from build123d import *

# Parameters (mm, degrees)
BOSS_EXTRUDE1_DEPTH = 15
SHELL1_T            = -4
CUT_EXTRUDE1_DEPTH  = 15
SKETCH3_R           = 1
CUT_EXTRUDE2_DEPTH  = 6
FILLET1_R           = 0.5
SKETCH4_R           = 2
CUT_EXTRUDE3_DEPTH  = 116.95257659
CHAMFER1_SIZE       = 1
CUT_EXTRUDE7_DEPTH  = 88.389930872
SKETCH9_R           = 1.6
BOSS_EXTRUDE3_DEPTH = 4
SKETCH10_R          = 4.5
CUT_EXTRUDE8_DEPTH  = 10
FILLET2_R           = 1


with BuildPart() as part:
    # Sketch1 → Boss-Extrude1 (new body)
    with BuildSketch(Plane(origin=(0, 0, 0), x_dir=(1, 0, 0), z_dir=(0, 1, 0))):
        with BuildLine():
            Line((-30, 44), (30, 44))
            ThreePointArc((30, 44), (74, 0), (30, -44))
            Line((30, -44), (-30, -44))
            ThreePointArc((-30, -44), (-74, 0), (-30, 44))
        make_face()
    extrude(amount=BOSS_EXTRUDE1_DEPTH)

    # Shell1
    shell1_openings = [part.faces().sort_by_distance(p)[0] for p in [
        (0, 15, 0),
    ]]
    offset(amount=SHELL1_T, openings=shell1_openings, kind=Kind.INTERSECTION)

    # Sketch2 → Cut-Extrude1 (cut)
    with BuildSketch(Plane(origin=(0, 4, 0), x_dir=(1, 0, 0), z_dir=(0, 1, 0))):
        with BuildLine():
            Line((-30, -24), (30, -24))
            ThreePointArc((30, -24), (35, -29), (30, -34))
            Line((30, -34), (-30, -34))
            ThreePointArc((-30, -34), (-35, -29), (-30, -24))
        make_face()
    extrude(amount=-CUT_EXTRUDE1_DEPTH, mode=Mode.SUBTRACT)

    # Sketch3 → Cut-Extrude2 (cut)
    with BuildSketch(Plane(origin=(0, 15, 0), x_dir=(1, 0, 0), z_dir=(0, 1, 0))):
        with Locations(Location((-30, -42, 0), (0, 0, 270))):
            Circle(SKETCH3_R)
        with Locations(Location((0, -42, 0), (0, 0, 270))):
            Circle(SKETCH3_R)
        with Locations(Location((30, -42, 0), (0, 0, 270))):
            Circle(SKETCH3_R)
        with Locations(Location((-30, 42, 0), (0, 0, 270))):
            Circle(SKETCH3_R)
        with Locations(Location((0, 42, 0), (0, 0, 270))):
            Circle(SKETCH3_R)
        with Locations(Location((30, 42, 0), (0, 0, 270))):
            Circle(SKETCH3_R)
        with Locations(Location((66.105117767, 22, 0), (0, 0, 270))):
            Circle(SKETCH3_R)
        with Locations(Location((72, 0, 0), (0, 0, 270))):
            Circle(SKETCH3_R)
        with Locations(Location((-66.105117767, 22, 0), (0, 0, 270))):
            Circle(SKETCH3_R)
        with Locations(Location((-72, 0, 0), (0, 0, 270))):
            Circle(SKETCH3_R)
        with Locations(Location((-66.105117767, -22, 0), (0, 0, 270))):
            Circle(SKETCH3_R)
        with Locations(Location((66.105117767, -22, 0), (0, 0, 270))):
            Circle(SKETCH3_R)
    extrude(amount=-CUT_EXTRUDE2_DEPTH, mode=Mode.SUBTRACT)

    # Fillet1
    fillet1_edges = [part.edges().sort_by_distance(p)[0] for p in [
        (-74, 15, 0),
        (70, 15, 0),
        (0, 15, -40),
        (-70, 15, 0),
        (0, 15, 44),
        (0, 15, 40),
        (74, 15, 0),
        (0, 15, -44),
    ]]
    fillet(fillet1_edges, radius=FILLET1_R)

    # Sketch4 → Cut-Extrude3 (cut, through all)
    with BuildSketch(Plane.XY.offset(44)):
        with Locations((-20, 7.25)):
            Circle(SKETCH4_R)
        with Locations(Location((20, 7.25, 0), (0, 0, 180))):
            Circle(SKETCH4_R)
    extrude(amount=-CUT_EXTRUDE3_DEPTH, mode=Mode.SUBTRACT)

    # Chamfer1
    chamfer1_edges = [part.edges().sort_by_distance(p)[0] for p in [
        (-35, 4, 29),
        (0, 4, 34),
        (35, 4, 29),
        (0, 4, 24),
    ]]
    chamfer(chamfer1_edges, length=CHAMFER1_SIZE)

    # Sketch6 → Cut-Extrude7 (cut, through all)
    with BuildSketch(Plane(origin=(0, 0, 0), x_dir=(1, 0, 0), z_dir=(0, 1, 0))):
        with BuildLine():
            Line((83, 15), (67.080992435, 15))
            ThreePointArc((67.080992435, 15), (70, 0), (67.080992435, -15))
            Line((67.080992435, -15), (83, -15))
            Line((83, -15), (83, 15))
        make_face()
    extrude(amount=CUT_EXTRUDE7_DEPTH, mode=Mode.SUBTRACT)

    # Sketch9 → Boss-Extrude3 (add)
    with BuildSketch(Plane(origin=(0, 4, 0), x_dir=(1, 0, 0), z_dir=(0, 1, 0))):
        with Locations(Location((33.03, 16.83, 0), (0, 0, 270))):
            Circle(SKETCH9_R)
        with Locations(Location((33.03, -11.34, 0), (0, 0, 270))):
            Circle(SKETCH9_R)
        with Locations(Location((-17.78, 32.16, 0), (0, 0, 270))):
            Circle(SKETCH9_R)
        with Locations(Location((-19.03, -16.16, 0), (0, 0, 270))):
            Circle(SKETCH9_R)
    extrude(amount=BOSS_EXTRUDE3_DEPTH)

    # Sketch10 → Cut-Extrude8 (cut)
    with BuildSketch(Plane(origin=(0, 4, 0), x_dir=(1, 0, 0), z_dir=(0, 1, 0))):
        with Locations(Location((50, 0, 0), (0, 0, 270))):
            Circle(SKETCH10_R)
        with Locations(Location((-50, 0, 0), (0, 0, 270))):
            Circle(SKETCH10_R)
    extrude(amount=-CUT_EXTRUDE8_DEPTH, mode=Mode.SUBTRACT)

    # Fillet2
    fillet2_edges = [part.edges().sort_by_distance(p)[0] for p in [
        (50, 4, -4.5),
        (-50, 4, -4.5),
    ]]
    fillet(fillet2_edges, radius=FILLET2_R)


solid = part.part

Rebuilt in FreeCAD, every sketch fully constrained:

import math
import FreeCAD as App
import Part
import Sketcher

V = App.Vector
Q = App.Units.Quantity


def edges_at(feature, points):
    """Names of the edges that pass closest to the given points."""
    edges = feature.Shape.Edges
    near = lambda p: min(range(len(edges)), key=lambda i: edges[i].distToShape(Part.Vertex(*p))[0])
    return sorted({f"Edge{near(p) + 1}" for p in points})


def faces_at(feature, points):
    """Names of the faces that lie closest to the given points."""
    faces = feature.Shape.Faces
    near = lambda p: min(range(len(faces)), key=lambda i: faces[i].distToShape(Part.Vertex(*p))[0])
    return sorted({f"Face{near(p) + 1}" for p in points})

doc = App.newDocument("Part")
body = doc.addObject("PartDesign::Body", "Body")

# Sketch on XZ plane
sketch1 = body.newObject("Sketcher::SketchObject", "Sketch")
sketch1.AttachmentSupport = (doc.getObject("XZ_Plane"), [""])
sketch1.MapMode = "FlatFace"
sketch1.addGeometry(Part.LineSegment(V(30, -44, 0), V(-30, -44, 0)), False)
sketch1.addGeometry(Part.ArcOfCircle(Part.Circle(V(-30, 0, 0), V(0, 0, 1), 44), math.radians(90), math.radians(270)), False)
sketch1.addGeometry(Part.LineSegment(V(-30, 44, 0), V(30, 44, 0)), False)
sketch1.addGeometry(Part.ArcOfCircle(Part.Circle(V(30, 0, 0), V(0, 0, 1), 44), math.radians(-90), math.radians(90)), False)
sketch1.addConstraint(Sketcher.Constraint("Tangent", 0, 2, 1, 2))
sketch1.addConstraint(Sketcher.Constraint("Tangent", 1, 1, 2, 1))
sketch1.addConstraint(Sketcher.Constraint("Tangent", 2, 2, 3, 2))
sketch1.addConstraint(Sketcher.Constraint("Tangent", 3, 1, 0, 1))
sketch1.addConstraint(Sketcher.Constraint("Horizontal", 0))
sketch1.addConstraint(Sketcher.Constraint("Horizontal", 2))
sketch1.addConstraint(Sketcher.Constraint("Symmetric", 1, 3, 3, 3, -1, 1))
sketch1.addConstraint(Sketcher.Constraint("Radius", 1, Q("44 mm")))
sketch1.addConstraint(Sketcher.Constraint("DistanceX", 0, 2, 0, 1, Q("60 mm")))
pad1 = body.newObject("PartDesign::Pad", "Pad")
pad1.Profile = sketch1
pad1.Length = 15
pad1.Reversed = True
doc.recompute()

thickness = body.newObject("PartDesign::Thickness", "Thickness")
thickness.Base = (pad1, faces_at(pad1, [(0, 15, 0)]))
thickness.Value = 4
thickness.Reversed = True
thickness.Join = "Intersection"

# Sketch on XZ plane
sketch2 = body.newObject("Sketcher::SketchObject", "Sketch001")
sketch2.AttachmentSupport = (doc.getObject("XZ_Plane"), [""])
sketch2.MapMode = "FlatFace"
sketch2.AttachmentOffset = App.Placement(V(0, 0, -4), App.Rotation())
sketch2.addGeometry(Part.LineSegment(V(30, 24, 0), V(-30, 24, 0)), False)
sketch2.addGeometry(Part.ArcOfCircle(Part.Circle(V(-30, 29, 0), V(0, 0, 1), 5), math.radians(90), math.radians(270)), False)
sketch2.addGeometry(Part.LineSegment(V(-30, 34, 0), V(30, 34, 0)), False)
sketch2.addGeometry(Part.ArcOfCircle(Part.Circle(V(30, 29, 0), V(0, 0, 1), 5), math.radians(-90), math.radians(90)), False)
sketch2.addConstraint(Sketcher.Constraint("Tangent", 0, 2, 1, 2))
sketch2.addConstraint(Sketcher.Constraint("Tangent", 1, 1, 2, 1))
sketch2.addConstraint(Sketcher.Constraint("Tangent", 2, 2, 3, 2))
sketch2.addConstraint(Sketcher.Constraint("Tangent", 3, 1, 0, 1))
sketch2.addConstraint(Sketcher.Constraint("Horizontal", 0))
sketch2.addConstraint(Sketcher.Constraint("Horizontal", 2))
sketch2.addConstraint(Sketcher.Constraint("Radius", 1, Q("5 mm")))
sketch2.addConstraint(Sketcher.Constraint("DistanceX", 0, 2, 0, 1, Q("60 mm")))
sketch2.addConstraint(Sketcher.Constraint("DistanceX", 1, 3, -1, 1, Q("30 mm")))
sketch2.addConstraint(Sketcher.Constraint("DistanceY", -1, 1, 1, 3, Q("29 mm")))
pocket1 = body.newObject("PartDesign::Pocket", "Pocket")
pocket1.Profile = sketch2
pocket1.Length = 15
pocket1.Reversed = True

# Sketch on XZ plane
sketch3 = body.newObject("Sketcher::SketchObject", "Sketch002")
sketch3.AttachmentSupport = (doc.getObject("XZ_Plane"), [""])
sketch3.MapMode = "FlatFace"
sketch3.AttachmentOffset = App.Placement(V(0, 0, -15), App.Rotation())
sketch3.addGeometry(Part.Circle(V(-30, 42, 0), V(0, 0, 1), 1), False)
sketch3.addGeometry(Part.Circle(V(0, 42, 0), V(0, 0, 1), 1), False)
sketch3.addGeometry(Part.Circle(V(30, 42, 0), V(0, 0, 1), 1), False)
sketch3.addGeometry(Part.Circle(V(-30, -42, 0), V(0, 0, 1), 1), False)
sketch3.addGeometry(Part.Circle(V(0, -42, 0), V(0, 0, 1), 1), False)
sketch3.addGeometry(Part.Circle(V(30, -42, 0), V(0, 0, 1), 1), False)
sketch3.addGeometry(Part.Circle(V(66.1, -22, 0), V(0, 0, 1), 1), False)
sketch3.addGeometry(Part.Circle(V(72, 0, 0), V(0, 0, 1), 1), False)
sketch3.addGeometry(Part.Circle(V(-66.1, -22, 0), V(0, 0, 1), 1), False)
sketch3.addGeometry(Part.Circle(V(-72, 0, 0), V(0, 0, 1), 1), False)
sketch3.addGeometry(Part.Circle(V(-66.1, 22, 0), V(0, 0, 1), 1), False)
sketch3.addGeometry(Part.Circle(V(66.1, 22, 0), V(0, 0, 1), 1), False)
sketch3.addConstraint(Sketcher.Constraint("Equal", 0, 1))
sketch3.addConstraint(Sketcher.Constraint("Equal", 1, 2))
sketch3.addConstraint(Sketcher.Constraint("Equal", 2, 3))
sketch3.addConstraint(Sketcher.Constraint("Equal", 3, 4))
sketch3.addConstraint(Sketcher.Constraint("Equal", 4, 5))
sketch3.addConstraint(Sketcher.Constraint("Equal", 5, 6))
sketch3.addConstraint(Sketcher.Constraint("Equal", 6, 7))
sketch3.addConstraint(Sketcher.Constraint("Equal", 7, 8))
sketch3.addConstraint(Sketcher.Constraint("Equal", 8, 9))
sketch3.addConstraint(Sketcher.Constraint("Equal", 9, 10))
sketch3.addConstraint(Sketcher.Constraint("Equal", 10, 11))
sketch3.addConstraint(Sketcher.Constraint("Symmetric", 2, 3, 3, 3, -1, 1))
sketch3.addConstraint(Sketcher.Constraint("Symmetric", 1, 3, 4, 3, -1, 1))
sketch3.addConstraint(Sketcher.Constraint("Symmetric", 0, 3, 5, 3, -1, 1))
sketch3.addConstraint(Sketcher.Constraint("Symmetric", 7, 3, 9, 3, -1, 1))
sketch3.addConstraint(Sketcher.Constraint("Symmetric", 6, 3, 10, 3, -1, 1))
sketch3.addConstraint(Sketcher.Constraint("Symmetric", 8, 3, 11, 3, -1, 1))
sketch3.addConstraint(Sketcher.Constraint("Symmetric", 0, 3, 2, 3, -2))
sketch3.addConstraint(Sketcher.Constraint("Symmetric", 6, 3, 8, 3, -2))
sketch3.addConstraint(Sketcher.Constraint("PointOnObject", 1, 3, -2))
sketch3.addConstraint(Sketcher.Constraint("PointOnObject", 7, 3, -1))
sketch3.addConstraint(Sketcher.Constraint("Horizontal", 0, 3, 1, 3))
sketch3.addConstraint(Sketcher.Constraint("Diameter", 0, Q("2 mm")))
sketch3.addConstraint(Sketcher.Constraint("DistanceX", 0, 3, -1, 1, Q("30 mm")))
sketch3.addConstraint(Sketcher.Constraint("DistanceY", -1, 1, 0, 3, Q("42 mm")))
sketch3.addConstraint(Sketcher.Constraint("DistanceY", 6, 3, -1, 1, Q("22 mm")))
sketch3.addConstraint(Sketcher.Constraint("DistanceX", -1, 1, 7, 3, Q("72 mm")))
sketch3.addConstraint(Sketcher.Constraint("DistanceX", -1, 1, 6, 3, Q("66.105118 mm")))
pocket2 = body.newObject("PartDesign::Pocket", "Pocket001")
pocket2.Profile = sketch3
pocket2.Length = 6
pocket2.Reversed = True
doc.recompute()

fillet = body.newObject("PartDesign::Fillet", "Fillet")
fillet.Base = (pocket2, edges_at(pocket2, [
    (-74, 15, 0),
    (70, 15, 0),
    (0, 15, -40),
    (-70, 15, 0),
    (0, 15, 44),
    (0, 15, 40),
    (74, 15, 0),
    (0, 15, -44),
]))
fillet.Radius = 0.5

# Sketch on XY plane
sketch4 = body.newObject("Sketcher::SketchObject", "Sketch003")
sketch4.AttachmentSupport = (doc.getObject("XY_Plane"), [""])
sketch4.MapMode = "FlatFace"
sketch4.AttachmentOffset = App.Placement(V(0, 0, 44), App.Rotation())
sketch4.addGeometry(Part.Circle(V(-20, 7.2, 0), V(0, 0, 1), 2), False)
sketch4.addGeometry(Part.Circle(V(20, 7.2, 0), V(0, 0, 1), 2), False)
sketch4.addConstraint(Sketcher.Constraint("Equal", 0, 1))
sketch4.addConstraint(Sketcher.Constraint("Symmetric", 0, 3, 1, 3, -2))
sketch4.addConstraint(Sketcher.Constraint("Diameter", 0, Q("4 mm")))
sketch4.addConstraint(Sketcher.Constraint("DistanceX", 0, 3, -1, 1, Q("20 mm")))
sketch4.addConstraint(Sketcher.Constraint("DistanceY", -1, 1, 0, 3, Q("7.25 mm")))
pocket3 = body.newObject("PartDesign::Pocket", "Pocket002")
pocket3.Profile = sketch4
pocket3.Type = "ThroughAll"
doc.recompute()

chamfer = body.newObject("PartDesign::Chamfer", "Chamfer")
chamfer.Base = (pocket3, edges_at(pocket3, [
    (-35, 4, 29),
    (0, 4, 34),
    (35, 4, 29),
    (0, 4, 24),
]))
chamfer.Size = 1

# Sketch on XZ plane
sketch5 = body.newObject("Sketcher::SketchObject", "Sketch004")
sketch5.AttachmentSupport = (doc.getObject("XZ_Plane"), [""])
sketch5.MapMode = "FlatFace"
sketch5.addGeometry(Part.LineSegment(V(83, -15, 0), V(67, -15, 0)), False)
sketch5.addGeometry(Part.ArcOfCircle(Part.Circle(V(30, 0, 0), V(0, 0, 1), 40), math.radians(-22), math.radians(22)), False)
sketch5.addGeometry(Part.LineSegment(V(67, 15, 0), V(83, 15, 0)), False)
sketch5.addGeometry(Part.LineSegment(V(83, 15, 0), V(83, -15, 0)), False)
sketch5.addConstraint(Sketcher.Constraint("Coincident", 0, 2, 1, 1))
sketch5.addConstraint(Sketcher.Constraint("Coincident", 1, 2, 2, 1))
sketch5.addConstraint(Sketcher.Constraint("Coincident", 2, 2, 3, 1))
sketch5.addConstraint(Sketcher.Constraint("Coincident", 3, 2, 0, 1))
sketch5.addConstraint(Sketcher.Constraint("Horizontal", 0))
sketch5.addConstraint(Sketcher.Constraint("Horizontal", 2))
sketch5.addConstraint(Sketcher.Constraint("Vertical", 3))
sketch5.addConstraint(Sketcher.Constraint("Symmetric", 0, 2, 1, 2, -1))
sketch5.addConstraint(Sketcher.Constraint("Radius", 1, Q("40 mm")))
sketch5.addConstraint(Sketcher.Constraint("DistanceY", 3, 2, 3, 1, Q("30 mm")))
sketch5.addConstraint(Sketcher.Constraint("DistanceX", -1, 1, 1, 3, Q("30 mm")))
sketch5.addConstraint(Sketcher.Constraint("DistanceX", -1, 1, 2, 2, Q("83 mm")))
pocket4 = body.newObject("PartDesign::Pocket", "Pocket003")
pocket4.Profile = sketch5
pocket4.Type = "ThroughAll"

# Sketch on XZ plane
sketch6 = body.newObject("Sketcher::SketchObject", "Sketch005")
sketch6.AttachmentSupport = (doc.getObject("XZ_Plane"), [""])
sketch6.MapMode = "FlatFace"
sketch6.AttachmentOffset = App.Placement(V(0, 0, -4), App.Rotation())
sketch6.addGeometry(Part.Circle(V(33, -16.8, 0), V(0, 0, 1), 1.6), False)
sketch6.addGeometry(Part.Circle(V(33, 11.3, 0), V(0, 0, 1), 1.6), False)
sketch6.addGeometry(Part.Circle(V(-17.8, -32.2, 0), V(0, 0, 1), 1.6), False)
sketch6.addGeometry(Part.Circle(V(-19, 16.2, 0), V(0, 0, 1), 1.6), False)
sketch6.addConstraint(Sketcher.Constraint("Equal", 0, 1))
sketch6.addConstraint(Sketcher.Constraint("Equal", 1, 2))
sketch6.addConstraint(Sketcher.Constraint("Equal", 2, 3))
sketch6.addConstraint(Sketcher.Constraint("Vertical", 0, 3, 1, 3))
sketch6.addConstraint(Sketcher.Constraint("Diameter", 0, Q("3.2 mm")))
sketch6.addConstraint(Sketcher.Constraint("DistanceY", 2, 3, 1, 3, Q("43.5 mm")))
sketch6.addConstraint(Sketcher.Constraint("DistanceX", -1, 1, 0, 3, Q("33.03 mm")))
sketch6.addConstraint(Sketcher.Constraint("DistanceY", 0, 3, -1, 1, Q("16.83 mm")))
sketch6.addConstraint(Sketcher.Constraint("DistanceY", -1, 1, 1, 3, Q("11.34 mm")))
sketch6.addConstraint(Sketcher.Constraint("DistanceX", 2, 3, -1, 1, Q("17.78 mm")))
sketch6.addConstraint(Sketcher.Constraint("DistanceX", 3, 3, -1, 1, Q("19.03 mm")))
sketch6.addConstraint(Sketcher.Constraint("DistanceY", -1, 1, 3, 3, Q("16.16 mm")))
pad2 = body.newObject("PartDesign::Pad", "Pad001")
pad2.Profile = sketch6
pad2.Length = 4
pad2.Reversed = True

# Sketch on XZ plane
sketch7 = body.newObject("Sketcher::SketchObject", "Sketch006")
sketch7.AttachmentSupport = (doc.getObject("XZ_Plane"), [""])
sketch7.MapMode = "FlatFace"
sketch7.AttachmentOffset = App.Placement(V(0, 0, -4), App.Rotation())
sketch7.addGeometry(Part.Circle(V(50, 0, 0), V(0, 0, 1), 4.5), False)
sketch7.addGeometry(Part.Circle(V(-50, 0, 0), V(0, 0, 1), 4.5), False)
sketch7.addConstraint(Sketcher.Constraint("Equal", 0, 1))
sketch7.addConstraint(Sketcher.Constraint("Symmetric", 0, 3, 1, 3, -1, 1))
sketch7.addConstraint(Sketcher.Constraint("PointOnObject", 0, 3, -1))
sketch7.addConstraint(Sketcher.Constraint("Diameter", 0, Q("9 mm")))
sketch7.addConstraint(Sketcher.Constraint("DistanceX", -1, 1, 0, 3, Q("50 mm")))
pocket5 = body.newObject("PartDesign::Pocket", "Pocket004")
pocket5.Profile = sketch7
pocket5.Length = 10
pocket5.Reversed = True
doc.recompute()

fillet2 = body.newObject("PartDesign::Fillet", "Fillet001")
fillet2.Base = (pocket5, edges_at(pocket5, [(50, 4, -4.5), (-50, 4, -4.5)]))
fillet2.Radius = 1

doc.recompute()
